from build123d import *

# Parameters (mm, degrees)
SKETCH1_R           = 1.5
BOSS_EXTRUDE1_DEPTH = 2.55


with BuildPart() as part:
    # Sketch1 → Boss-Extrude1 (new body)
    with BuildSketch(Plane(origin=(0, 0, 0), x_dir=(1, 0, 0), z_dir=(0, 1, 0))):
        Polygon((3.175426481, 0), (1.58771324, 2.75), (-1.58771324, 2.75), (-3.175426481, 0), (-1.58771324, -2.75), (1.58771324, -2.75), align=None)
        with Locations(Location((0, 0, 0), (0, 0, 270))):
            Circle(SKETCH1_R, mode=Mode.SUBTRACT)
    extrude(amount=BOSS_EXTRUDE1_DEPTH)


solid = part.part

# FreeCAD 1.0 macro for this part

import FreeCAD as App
import Part
import Sketcher
from FreeCAD import Vector
Q = App.Units.Quantity


def add_polygon(sketch, points):
    """Adds a closed chain of lines whose ends are joined by coincident constraints."""
    first, n = sketch.GeometryCount, len(points)
    for a, b in zip(points, points[1:] + points[:1]):
        sketch.addGeometry(Part.LineSegment(App.Vector(*a, 0), App.Vector(*b, 0)), False)
    for i in range(n):
        sketch.addConstraint(Sketcher.Constraint("Coincident", first + i, 2, first + (i + 1) % n, 1))

doc = App.newDocument("Part")
params = doc.addObject("Spreadsheet::Sheet", "Params")
for row, (alias, value) in enumerate([
    ("sketch1_diameter", "3 mm"),
    ("pad1_length", "2.55 mm"),
], start=1):
    params.set(f"A{row}", alias)
    params.set(f"B{row}", "=" + value)
    params.setAlias(f"B{row}", alias)

body = doc.addObject("PartDesign::Body", "Body")

# Sketch on XZ plane
sketch1 = body.newObject("Sketcher::SketchObject", "Sketch")
sketch1.AttachmentSupport = (doc.getObject("XZ_Plane"), [""])
sketch1.MapMode = "FlatFace"
add_polygon(sketch1, [(3.2, 0), (1.6, -2.8), (-1.6, -2.8), (-3.2, 0), (-1.6, 2.8), (1.6, 2.8)])  # lines 0-5
sketch1.addGeometry(Part.Circle(Vector(0, 0, 0), Vector(0, 0, 1), 1.5), False)  # 6
sketch1.addConstraint([
    Sketcher.Constraint("Horizontal", 1),
    Sketcher.Constraint("Horizontal", 4),
    Sketcher.Constraint("Coincident", 6, 3, -1, 1),
    Sketcher.Constraint("Symmetric", 0, 2, 3, 2, -1, 1),
    Sketcher.Constraint("Symmetric", 2, 2, 5, 2, -1, 1),
    Sketcher.Constraint("PointOnObject", 2, 2, -1),
    Sketcher.Constraint("Parallel", 2, 5),
    Sketcher.Constraint("Vertical", 1, 2, 3, 2),
    Sketcher.Constraint("Diameter", 6, 3.0),
    Sketcher.Constraint("Angle", 0, Q("-120 deg")),
    Sketcher.Constraint("DistanceY", 1, 2, 3, 2, 5.5),
    Sketcher.Constraint("DistanceX", 1, 2, 1, 1, 3.175426),
])
sketch1.setExpression("Constraints[14]", "Params.sketch1_diameter")
pad1 = body.newObject("PartDesign::Pad", "Pad")
pad1.Profile = sketch1
pad1.setExpression("Length", "Params.pad1_length")
pad1.Reversed = True

doc.recompute()
